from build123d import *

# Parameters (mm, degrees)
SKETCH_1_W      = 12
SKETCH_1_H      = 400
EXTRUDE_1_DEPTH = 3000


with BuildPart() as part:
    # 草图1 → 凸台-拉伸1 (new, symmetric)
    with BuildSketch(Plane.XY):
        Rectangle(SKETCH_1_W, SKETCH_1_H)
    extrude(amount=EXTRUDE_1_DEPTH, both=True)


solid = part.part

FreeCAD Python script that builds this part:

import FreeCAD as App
import Part
import Sketcher

V = App.Vector
Q = App.Units.Quantity

doc = App.newDocument("Part")
params = doc.addObject("Spreadsheet::Sheet", "Params")
for row, (alias, value) in enumerate([
    ("sketch1_width", "12 mm"),
    ("sketch1_height", "400 mm"),
    ("pad1_length", "6000 mm"),
], start=1):
    params.set(f"A{row}", alias)
    params.set(f"B{row}", "=" + value)
    params.setAlias(f"B{row}", alias)

body = doc.addObject("PartDesign::Body", "Body")

# Sketch on XY plane
sketch1 = doc.addObject("Sketcher::SketchObject", "Sketch")
body.addObject(sketch1)
sketch1.AttachmentSupport = (doc.XY_Plane, [""])
sketch1.MapMode = "FlatFace"
sketch1.addGeometry([
    Part.LineSegment(V(-6, 200, 0), V(-6, -200, 0)),
    Part.LineSegment(V(-6, -200, 0), V(6, -200, 0)),
    Part.LineSegment(V(6, -200, 0), V(6, 200, 0)),
    Part.LineSegment(V(6, 200, 0), V(-6, 200, 0)),
], False)
sketch1.addConstraint([
    Sketcher.Constraint("Coincident", 0, 2, 1, 1),
    Sketcher.Constraint("Coincident", 1, 2, 2, 1),
    Sketcher.Constraint("Coincident", 2, 2, 3, 1),
    Sketcher.Constraint("Coincident", 3, 2, 0, 1),
    Sketcher.Constraint("Vertical", 0),
    Sketcher.Constraint("Horizontal", 1),
    Sketcher.Constraint("Vertical", 2),
    Sketcher.Constraint("Horizontal", 3),
    Sketcher.Constraint("Symmetric", 0, 2, 2, 2, -1, 1),
    Sketcher.Constraint("DistanceX", 1, 1, 1, 2, Q("12 mm")),
    Sketcher.Constraint("DistanceY", 0, 2, 0, 1, Q("400 mm")),
])
sketch1.setExpression("Constraints[9]", "Params.sketch1_width")
sketch1.setExpression("Constraints[10]", "Params.sketch1_height")
pad1 = doc.addObject("PartDesign::Pad", "Pad")
body.addObject(pad1)
pad1.Profile = sketch1
pad1.setExpression("Length", "Params.pad1_length")
pad1.Midplane = True

doc.recompute()
